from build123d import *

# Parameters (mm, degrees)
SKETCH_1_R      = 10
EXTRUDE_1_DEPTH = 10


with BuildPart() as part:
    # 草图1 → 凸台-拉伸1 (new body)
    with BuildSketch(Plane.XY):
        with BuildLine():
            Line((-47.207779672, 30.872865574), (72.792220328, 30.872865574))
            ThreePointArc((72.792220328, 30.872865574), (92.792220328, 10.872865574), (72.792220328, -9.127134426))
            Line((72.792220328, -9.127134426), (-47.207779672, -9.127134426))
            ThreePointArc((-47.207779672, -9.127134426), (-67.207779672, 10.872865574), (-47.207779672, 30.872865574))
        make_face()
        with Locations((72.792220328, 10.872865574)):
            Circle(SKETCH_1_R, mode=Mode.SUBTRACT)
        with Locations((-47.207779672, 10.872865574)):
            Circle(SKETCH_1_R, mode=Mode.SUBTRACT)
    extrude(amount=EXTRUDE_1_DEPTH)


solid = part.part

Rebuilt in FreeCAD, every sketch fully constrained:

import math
import FreeCAD as App
import Part
import Sketcher

V = App.Vector

doc = App.newDocument("Part")
params = doc.addObject("Spreadsheet::Sheet", "Params")
for row, (alias, value) in enumerate([
    ("sketch1_diameter", "20 mm"),
    ("sketch1_radius", "20 mm"),
    ("sketch1_width", "120 mm"),
    ("pad1_length", "10 mm"),
], start=1):
    params.set(f"A{row}", alias)
    params.set(f"B{row}", "=" + value)
    params.setAlias(f"B{row}", alias)

body = doc.addObject("PartDesign::Body", "Body")

# Sketch on XY plane
sketch1 = body.newObject("Sketcher::SketchObject", "Sketch")
sketch1.AttachmentSupport = (doc.getObject("XY_Plane"), [""])
sketch1.MapMode = "FlatFace"
sketch1.addGeometry(Part.LineSegment(V(73, 31, 0), V(-47, 31, 0)), False)
sketch1.addGeometry(Part.ArcOfCircle(Part.Circle(V(-47, 11, 0), V(0, 0, 1), 20), math.radians(90), math.radians(270)), False)
sketch1.addGeometry(Part.LineSegment(V(-47, -9, 0), V(73, -9, 0)), False)
sketch1.addGeometry(Part.ArcOfCircle(Part.Circle(V(73, 11, 0), V(0, 0, 1), 20), math.radians(-90), math.radians(90)), False)
sketch1.addGeometry(Part.Circle(V(73, 11, 0), V(0, 0, 1), 10), False)
sketch1.addGeometry(Part.Circle(V(-47, 11, 0), V(0, 0, 1), 10), False)
sketch1.addConstraint(Sketcher.Constraint("Tangent", 0, 2, 1, 1))
sketch1.addConstraint(Sketcher.Constraint("Tangent", 1, 2, 2, 1))
sketch1.addConstraint(Sketcher.Constraint("Tangent", 2, 2, 3, 1))
sketch1.addConstraint(Sketcher.Constraint("Tangent", 3, 2, 0, 1))
sketch1.addConstraint(Sketcher.Constraint("Horizontal", 0))
sketch1.addConstraint(Sketcher.Constraint("Horizontal", 2))
sketch1.addConstraint(Sketcher.Constraint("Coincident", 4, 3, 3, 3))
sketch1.addConstraint(Sketcher.Constraint("Coincident", 5, 3, 1, 3))
sketch1.addConstraint(Sketcher.Constraint("Equal", 4, 5))
sketch1.addConstraint(Sketcher.Constraint("Diameter", 4, 20.0))
sketch1.addConstraint(Sketcher.Constraint("Radius", 1, 20.0))
sketch1.addConstraint(Sketcher.Constraint("DistanceX", 0, 2, 0, 1, 120.0))
sketch1.addConstraint(Sketcher.Constraint("DistanceX", 1, 3, -1, 1, 47.20778))
sketch1.addConstraint(Sketcher.Constraint("DistanceY", -1, 1, 1, 3, 10.872866))
sketch1.setExpression("Constraints[9]", "Params.sketch1_diameter")
sketch1.setExpression("Constraints[10]", "Params.sketch1_radius")
sketch1.setExpression("Constraints[11]", "Params.sketch1_width")
pad1 = body.newObject("PartDesign::Pad", "Pad")
pad1.Profile = sketch1
pad1.setExpression("Length", "Params.pad1_length")

doc.recompute()
